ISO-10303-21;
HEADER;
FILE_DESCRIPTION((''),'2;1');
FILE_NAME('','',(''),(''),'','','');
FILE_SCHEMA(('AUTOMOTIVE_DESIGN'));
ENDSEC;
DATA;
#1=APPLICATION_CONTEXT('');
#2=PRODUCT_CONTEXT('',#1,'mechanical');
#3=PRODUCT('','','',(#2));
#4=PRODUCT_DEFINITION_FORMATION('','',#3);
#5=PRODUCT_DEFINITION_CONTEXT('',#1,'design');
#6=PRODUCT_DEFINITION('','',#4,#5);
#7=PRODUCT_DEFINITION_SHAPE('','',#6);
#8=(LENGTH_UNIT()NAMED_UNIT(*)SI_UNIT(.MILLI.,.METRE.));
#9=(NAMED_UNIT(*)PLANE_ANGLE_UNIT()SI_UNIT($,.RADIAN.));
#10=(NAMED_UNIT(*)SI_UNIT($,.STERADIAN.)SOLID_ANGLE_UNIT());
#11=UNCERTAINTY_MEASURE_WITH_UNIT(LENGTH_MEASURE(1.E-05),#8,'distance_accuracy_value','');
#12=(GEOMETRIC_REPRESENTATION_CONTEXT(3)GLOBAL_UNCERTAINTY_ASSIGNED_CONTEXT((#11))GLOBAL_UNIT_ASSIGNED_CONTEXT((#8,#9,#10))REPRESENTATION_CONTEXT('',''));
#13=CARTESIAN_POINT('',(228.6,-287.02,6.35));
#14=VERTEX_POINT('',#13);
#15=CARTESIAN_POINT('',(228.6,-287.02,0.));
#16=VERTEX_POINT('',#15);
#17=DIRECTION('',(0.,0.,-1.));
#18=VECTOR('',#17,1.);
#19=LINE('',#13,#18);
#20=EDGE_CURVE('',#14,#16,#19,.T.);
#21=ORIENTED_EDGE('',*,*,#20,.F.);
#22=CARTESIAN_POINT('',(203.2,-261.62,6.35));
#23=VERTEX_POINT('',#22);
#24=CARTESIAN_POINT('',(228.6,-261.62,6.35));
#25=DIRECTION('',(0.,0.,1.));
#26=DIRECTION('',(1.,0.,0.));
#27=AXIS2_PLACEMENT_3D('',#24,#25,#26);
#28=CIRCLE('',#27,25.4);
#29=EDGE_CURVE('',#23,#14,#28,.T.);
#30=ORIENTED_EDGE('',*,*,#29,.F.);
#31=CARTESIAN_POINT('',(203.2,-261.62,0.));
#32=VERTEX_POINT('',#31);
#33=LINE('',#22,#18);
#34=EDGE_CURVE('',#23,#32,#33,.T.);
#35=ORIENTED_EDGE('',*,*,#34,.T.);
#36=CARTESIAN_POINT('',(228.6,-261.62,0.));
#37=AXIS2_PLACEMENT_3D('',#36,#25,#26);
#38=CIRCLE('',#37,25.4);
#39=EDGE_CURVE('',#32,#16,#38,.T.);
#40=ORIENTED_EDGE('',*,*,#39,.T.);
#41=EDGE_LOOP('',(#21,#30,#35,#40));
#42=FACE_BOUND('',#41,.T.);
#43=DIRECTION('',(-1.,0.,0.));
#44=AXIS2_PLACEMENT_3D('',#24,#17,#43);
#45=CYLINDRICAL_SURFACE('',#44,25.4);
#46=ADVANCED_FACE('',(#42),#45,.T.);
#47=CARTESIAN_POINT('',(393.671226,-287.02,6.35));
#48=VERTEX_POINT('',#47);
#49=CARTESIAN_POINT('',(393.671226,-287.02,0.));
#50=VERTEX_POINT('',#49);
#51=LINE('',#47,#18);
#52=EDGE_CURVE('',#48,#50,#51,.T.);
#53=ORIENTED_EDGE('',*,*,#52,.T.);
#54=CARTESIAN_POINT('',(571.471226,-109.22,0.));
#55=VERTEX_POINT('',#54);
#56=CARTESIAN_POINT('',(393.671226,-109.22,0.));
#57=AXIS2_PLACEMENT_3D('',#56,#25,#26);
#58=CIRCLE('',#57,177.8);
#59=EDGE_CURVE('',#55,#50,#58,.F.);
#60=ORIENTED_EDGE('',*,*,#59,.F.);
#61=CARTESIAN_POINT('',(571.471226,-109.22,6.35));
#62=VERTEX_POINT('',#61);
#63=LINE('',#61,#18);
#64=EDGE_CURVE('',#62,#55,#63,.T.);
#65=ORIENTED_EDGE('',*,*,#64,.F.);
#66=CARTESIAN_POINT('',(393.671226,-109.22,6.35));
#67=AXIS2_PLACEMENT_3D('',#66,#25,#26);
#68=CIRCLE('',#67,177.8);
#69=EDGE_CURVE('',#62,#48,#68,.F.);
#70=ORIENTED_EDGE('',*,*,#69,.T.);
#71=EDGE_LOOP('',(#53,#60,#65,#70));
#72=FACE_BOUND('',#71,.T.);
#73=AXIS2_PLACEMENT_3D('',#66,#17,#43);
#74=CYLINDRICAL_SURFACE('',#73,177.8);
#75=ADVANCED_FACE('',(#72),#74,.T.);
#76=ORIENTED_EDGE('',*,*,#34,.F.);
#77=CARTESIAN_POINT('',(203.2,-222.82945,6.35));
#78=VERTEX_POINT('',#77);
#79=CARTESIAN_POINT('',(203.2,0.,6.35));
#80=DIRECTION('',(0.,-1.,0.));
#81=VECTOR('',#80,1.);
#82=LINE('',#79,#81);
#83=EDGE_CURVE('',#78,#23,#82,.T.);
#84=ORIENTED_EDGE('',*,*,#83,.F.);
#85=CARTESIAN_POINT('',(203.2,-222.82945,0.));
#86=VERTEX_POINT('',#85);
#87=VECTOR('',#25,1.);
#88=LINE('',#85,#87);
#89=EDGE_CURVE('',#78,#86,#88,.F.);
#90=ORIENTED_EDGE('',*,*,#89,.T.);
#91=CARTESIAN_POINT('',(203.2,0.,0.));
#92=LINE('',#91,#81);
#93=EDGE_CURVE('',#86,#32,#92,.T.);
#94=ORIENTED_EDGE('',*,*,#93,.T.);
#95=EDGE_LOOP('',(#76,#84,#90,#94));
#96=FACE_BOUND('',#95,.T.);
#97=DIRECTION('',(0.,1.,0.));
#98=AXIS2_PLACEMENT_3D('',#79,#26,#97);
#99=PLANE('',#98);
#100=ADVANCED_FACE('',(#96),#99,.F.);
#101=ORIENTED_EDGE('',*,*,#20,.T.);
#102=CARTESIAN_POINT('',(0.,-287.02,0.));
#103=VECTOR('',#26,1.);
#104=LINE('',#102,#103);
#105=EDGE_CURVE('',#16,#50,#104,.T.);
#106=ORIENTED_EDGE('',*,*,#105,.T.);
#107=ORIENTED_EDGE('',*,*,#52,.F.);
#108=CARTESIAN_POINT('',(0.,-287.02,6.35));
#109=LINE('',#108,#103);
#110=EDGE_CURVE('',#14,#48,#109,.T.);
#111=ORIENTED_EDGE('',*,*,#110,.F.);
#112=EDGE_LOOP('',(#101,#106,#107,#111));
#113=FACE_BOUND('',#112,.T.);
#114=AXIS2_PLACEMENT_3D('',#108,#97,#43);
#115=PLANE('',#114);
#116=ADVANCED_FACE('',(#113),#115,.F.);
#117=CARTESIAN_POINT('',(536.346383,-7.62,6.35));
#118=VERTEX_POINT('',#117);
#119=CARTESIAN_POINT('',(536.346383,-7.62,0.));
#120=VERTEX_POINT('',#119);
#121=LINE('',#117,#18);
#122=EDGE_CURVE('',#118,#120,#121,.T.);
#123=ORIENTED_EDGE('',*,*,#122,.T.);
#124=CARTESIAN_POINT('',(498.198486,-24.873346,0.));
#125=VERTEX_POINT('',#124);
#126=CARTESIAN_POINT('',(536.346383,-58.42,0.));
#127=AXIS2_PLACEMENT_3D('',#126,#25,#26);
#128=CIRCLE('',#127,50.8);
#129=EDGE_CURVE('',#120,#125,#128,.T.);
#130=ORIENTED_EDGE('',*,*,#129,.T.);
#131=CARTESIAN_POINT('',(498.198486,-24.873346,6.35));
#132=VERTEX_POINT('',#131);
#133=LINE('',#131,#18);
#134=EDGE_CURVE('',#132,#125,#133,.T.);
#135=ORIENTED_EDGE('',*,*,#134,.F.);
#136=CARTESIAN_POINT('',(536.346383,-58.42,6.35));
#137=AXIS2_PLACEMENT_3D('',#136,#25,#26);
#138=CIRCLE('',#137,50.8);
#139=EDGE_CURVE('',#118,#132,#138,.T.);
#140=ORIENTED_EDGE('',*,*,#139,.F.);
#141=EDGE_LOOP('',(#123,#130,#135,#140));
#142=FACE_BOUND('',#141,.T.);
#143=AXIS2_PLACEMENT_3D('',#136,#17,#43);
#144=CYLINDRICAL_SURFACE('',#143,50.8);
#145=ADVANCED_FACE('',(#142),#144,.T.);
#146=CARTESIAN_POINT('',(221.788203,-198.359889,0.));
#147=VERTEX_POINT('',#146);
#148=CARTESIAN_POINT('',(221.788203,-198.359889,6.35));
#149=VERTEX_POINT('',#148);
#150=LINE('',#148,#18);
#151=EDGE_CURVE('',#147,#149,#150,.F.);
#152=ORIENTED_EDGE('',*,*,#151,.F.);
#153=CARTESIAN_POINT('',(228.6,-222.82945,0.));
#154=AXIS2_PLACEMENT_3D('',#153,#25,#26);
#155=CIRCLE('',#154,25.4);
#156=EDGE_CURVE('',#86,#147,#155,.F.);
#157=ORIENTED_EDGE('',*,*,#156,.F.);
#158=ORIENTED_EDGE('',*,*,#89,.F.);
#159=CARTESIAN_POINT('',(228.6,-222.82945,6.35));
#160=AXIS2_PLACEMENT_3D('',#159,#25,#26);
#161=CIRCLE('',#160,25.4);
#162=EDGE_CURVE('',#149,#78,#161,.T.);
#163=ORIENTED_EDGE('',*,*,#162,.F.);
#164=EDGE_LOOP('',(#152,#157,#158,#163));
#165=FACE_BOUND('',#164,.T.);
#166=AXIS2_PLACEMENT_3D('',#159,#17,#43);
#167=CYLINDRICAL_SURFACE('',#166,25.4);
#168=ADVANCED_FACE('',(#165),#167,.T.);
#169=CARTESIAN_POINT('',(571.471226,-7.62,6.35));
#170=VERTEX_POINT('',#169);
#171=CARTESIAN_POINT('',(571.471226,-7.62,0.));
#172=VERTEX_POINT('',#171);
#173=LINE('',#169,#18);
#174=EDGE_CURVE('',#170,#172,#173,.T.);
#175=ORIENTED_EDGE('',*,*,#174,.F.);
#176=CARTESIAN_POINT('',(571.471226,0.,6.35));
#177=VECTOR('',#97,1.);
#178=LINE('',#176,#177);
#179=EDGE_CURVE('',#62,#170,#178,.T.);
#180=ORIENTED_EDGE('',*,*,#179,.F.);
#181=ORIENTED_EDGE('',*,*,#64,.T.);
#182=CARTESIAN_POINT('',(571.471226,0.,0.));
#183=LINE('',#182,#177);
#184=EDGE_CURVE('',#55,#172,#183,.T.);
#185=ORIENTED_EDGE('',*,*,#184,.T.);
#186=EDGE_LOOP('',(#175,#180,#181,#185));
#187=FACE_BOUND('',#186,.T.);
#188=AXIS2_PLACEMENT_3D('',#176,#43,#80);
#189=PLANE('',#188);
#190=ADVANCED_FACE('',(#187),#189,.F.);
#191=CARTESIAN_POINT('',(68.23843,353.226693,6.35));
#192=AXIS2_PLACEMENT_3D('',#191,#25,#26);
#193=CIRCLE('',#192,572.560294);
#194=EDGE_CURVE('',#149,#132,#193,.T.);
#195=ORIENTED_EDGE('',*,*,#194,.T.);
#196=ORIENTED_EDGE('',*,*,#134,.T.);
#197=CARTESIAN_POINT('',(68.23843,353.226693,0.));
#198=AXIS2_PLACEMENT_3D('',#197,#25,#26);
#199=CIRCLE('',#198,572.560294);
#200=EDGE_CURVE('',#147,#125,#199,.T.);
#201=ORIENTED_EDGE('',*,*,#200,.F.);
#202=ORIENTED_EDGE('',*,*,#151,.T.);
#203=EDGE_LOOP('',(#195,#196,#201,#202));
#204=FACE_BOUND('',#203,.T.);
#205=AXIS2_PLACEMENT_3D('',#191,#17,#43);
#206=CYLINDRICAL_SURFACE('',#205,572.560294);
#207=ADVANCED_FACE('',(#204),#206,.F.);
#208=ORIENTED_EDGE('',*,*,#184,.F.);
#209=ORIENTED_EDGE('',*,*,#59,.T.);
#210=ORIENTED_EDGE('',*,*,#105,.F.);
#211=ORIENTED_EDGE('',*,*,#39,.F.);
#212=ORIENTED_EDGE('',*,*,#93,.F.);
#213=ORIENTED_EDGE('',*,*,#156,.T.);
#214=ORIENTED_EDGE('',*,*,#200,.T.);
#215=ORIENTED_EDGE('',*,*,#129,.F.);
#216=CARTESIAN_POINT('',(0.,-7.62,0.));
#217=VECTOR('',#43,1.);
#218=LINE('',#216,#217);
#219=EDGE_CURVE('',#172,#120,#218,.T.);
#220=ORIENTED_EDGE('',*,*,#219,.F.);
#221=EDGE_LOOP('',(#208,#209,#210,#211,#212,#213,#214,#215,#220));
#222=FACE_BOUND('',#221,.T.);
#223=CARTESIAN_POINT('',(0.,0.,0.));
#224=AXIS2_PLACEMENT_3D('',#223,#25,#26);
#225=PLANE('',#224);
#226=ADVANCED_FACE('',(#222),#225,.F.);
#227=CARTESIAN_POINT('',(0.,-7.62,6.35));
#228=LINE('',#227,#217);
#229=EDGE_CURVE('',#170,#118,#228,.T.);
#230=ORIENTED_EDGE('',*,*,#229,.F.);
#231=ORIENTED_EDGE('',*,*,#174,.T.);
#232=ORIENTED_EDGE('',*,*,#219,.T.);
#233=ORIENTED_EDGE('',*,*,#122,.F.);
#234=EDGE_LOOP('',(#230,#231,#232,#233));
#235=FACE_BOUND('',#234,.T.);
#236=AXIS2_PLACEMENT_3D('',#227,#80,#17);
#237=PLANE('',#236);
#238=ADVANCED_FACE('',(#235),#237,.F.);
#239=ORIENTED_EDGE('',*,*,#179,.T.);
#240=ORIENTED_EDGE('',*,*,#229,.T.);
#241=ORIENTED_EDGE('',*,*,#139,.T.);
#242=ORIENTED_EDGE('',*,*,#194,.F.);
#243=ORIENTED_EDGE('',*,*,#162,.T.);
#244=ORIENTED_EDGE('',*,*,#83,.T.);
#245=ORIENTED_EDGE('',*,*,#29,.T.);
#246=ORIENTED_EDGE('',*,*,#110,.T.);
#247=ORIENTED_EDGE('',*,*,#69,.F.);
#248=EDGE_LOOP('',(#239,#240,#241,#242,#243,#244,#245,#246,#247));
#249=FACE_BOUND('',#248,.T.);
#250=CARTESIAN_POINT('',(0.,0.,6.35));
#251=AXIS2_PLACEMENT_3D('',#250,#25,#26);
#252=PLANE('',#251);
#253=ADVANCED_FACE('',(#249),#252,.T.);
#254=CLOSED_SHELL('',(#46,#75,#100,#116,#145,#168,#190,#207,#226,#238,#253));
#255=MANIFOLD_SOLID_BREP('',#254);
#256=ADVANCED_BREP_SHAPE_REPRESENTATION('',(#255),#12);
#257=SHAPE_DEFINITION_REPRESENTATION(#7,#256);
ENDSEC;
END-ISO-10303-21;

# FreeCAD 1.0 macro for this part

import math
import FreeCAD as App
import Part
import Sketcher
from FreeCAD import Vector
Q = App.Units.Quantity


def edges_at(feature, points):
    """Names of the edges that pass closest to the given points."""
    edges = feature.Shape.Edges
    near = lambda p: min(range(len(edges)), key=lambda i: edges[i].distToShape(Part.Vertex(*p))[0])
    return sorted({f"Edge{near(p) + 1}" for p in points})

doc = App.newDocument("Part")
body = doc.addObject("PartDesign::Body", "Body")

# Sketch on XY plane
sketch1 = body.newObject("Sketcher::SketchObject", "Sketch")
sketch1.AttachmentSupport = (doc.getObject("XY_Plane"), [""])
sketch1.MapMode = "FlatFace"
sketch1.addGeometry(Part.LineSegment(Vector(203.2, -203.2, 0), Vector(203.2, -261.62, 0)), False)
sketch1.addGeometry(Part.ArcOfCircle(Part.Circle(Vector(228.6, -261.62, 0), Vector(0, 0, 1), 25.4), math.radians(180), math.radians(270)), False)
sketch1.addGeometry(Part.LineSegment(Vector(228.6, -287.02, 0), Vector(393.671226, -287.02, 0)), False)
sketch1.addGeometry(Part.ArcOfCircle(Part.Circle(Vector(393.671226, -109.22, 0), Vector(0, 0, 1), 177.8), math.radians(-90), math.radians(0)), False)
sketch1.addGeometry(Part.LineSegment(Vector(571.471226, -109.22, 0), Vector(571.471226, -7.62, 0)), False)
sketch1.addGeometry(Part.LineSegment(Vector(571.471226, -7.62, 0), Vector(536.346383, -7.62, 0)), False)
sketch1.addGeometry(Part.ArcOfCircle(Part.Circle(Vector(536.346383, -58.42, 0), Vector(0, 0, 1), 50.8), math.radians(90), math.radians(138.672116)), False)
sketch1.addGeometry(Part.ArcOfCircle(Part.Circle(Vector(68.23843, 353.226693, 0), Vector(0, 0, 1), 572.560294), math.radians(-76.366173), math.radians(-41.327884)), False)
sketch1.addConstraint(Sketcher.Constraint("Tangent", 0, 2, 1, 1))
sketch1.addConstraint(Sketcher.Constraint("Tangent", 1, 2, 2, 1))
sketch1.addConstraint(Sketcher.Constraint("Tangent", 2, 2, 3, 1))
sketch1.addConstraint(Sketcher.Constraint("Tangent", 3, 2, 4, 1))
sketch1.addConstraint(Sketcher.Constraint("Coincident", 4, 2, 5, 1))
sketch1.addConstraint(Sketcher.Constraint("Tangent", 5, 2, 6, 1))
sketch1.addConstraint(Sketcher.Constraint("Tangent", 6, 2, 7, 2))
sketch1.addConstraint(Sketcher.Constraint("Coincident", 7, 1, 0, 1))
sketch1.addConstraint(Sketcher.Constraint("Vertical", 0))
sketch1.addConstraint(Sketcher.Constraint("Horizontal", 2))
sketch1.addConstraint(Sketcher.Constraint("Vertical", 4))
sketch1.addConstraint(Sketcher.Constraint("Horizontal", 5))
sketch1.addConstraint(Sketcher.Constraint("Radius", 1, Q("1 in")))
sketch1.addConstraint(Sketcher.Constraint("Radius", 3, Q("7 in")))
sketch1.addConstraint(Sketcher.Constraint("Radius", 6, Q("2 in")))
sketch1.addConstraint(Sketcher.Constraint("DistanceY", 4, 1, 4, 2, Q("4 in")))
sketch1.addConstraint(Sketcher.Constraint("DistanceY", 0, 2, 0, 1, Q("2.3 in")))
sketch1.addConstraint(Sketcher.Constraint("DistanceX", -1, 1, 1, 3, Q("9 in")))
sketch1.addConstraint(Sketcher.Constraint("DistanceY", 7, 1, -1, 1, Q("8 in")))
sketch1.addConstraint(Sketcher.Constraint("Radius", 7, 572.560294))
sketch1.addConstraint(Sketcher.Constraint("DistanceX", 2, 1, 2, 2, 165.071226))
sketch1.addConstraint(Sketcher.Constraint("DistanceX", 5, 2, 5, 1, 35.124843))
pad1 = body.newObject("PartDesign::Pad", "Pad")
pad1.Profile = sketch1
pad1.Length = Q("0.25 in")
doc.recompute()

fillet = body.newObject("PartDesign::Fillet", "Fillet")
fillet.Base = (pad1, edges_at(pad1, [(203.2, -203.2, 3.175)]))
fillet.Radius = Q("1 in")

doc.recompute()
